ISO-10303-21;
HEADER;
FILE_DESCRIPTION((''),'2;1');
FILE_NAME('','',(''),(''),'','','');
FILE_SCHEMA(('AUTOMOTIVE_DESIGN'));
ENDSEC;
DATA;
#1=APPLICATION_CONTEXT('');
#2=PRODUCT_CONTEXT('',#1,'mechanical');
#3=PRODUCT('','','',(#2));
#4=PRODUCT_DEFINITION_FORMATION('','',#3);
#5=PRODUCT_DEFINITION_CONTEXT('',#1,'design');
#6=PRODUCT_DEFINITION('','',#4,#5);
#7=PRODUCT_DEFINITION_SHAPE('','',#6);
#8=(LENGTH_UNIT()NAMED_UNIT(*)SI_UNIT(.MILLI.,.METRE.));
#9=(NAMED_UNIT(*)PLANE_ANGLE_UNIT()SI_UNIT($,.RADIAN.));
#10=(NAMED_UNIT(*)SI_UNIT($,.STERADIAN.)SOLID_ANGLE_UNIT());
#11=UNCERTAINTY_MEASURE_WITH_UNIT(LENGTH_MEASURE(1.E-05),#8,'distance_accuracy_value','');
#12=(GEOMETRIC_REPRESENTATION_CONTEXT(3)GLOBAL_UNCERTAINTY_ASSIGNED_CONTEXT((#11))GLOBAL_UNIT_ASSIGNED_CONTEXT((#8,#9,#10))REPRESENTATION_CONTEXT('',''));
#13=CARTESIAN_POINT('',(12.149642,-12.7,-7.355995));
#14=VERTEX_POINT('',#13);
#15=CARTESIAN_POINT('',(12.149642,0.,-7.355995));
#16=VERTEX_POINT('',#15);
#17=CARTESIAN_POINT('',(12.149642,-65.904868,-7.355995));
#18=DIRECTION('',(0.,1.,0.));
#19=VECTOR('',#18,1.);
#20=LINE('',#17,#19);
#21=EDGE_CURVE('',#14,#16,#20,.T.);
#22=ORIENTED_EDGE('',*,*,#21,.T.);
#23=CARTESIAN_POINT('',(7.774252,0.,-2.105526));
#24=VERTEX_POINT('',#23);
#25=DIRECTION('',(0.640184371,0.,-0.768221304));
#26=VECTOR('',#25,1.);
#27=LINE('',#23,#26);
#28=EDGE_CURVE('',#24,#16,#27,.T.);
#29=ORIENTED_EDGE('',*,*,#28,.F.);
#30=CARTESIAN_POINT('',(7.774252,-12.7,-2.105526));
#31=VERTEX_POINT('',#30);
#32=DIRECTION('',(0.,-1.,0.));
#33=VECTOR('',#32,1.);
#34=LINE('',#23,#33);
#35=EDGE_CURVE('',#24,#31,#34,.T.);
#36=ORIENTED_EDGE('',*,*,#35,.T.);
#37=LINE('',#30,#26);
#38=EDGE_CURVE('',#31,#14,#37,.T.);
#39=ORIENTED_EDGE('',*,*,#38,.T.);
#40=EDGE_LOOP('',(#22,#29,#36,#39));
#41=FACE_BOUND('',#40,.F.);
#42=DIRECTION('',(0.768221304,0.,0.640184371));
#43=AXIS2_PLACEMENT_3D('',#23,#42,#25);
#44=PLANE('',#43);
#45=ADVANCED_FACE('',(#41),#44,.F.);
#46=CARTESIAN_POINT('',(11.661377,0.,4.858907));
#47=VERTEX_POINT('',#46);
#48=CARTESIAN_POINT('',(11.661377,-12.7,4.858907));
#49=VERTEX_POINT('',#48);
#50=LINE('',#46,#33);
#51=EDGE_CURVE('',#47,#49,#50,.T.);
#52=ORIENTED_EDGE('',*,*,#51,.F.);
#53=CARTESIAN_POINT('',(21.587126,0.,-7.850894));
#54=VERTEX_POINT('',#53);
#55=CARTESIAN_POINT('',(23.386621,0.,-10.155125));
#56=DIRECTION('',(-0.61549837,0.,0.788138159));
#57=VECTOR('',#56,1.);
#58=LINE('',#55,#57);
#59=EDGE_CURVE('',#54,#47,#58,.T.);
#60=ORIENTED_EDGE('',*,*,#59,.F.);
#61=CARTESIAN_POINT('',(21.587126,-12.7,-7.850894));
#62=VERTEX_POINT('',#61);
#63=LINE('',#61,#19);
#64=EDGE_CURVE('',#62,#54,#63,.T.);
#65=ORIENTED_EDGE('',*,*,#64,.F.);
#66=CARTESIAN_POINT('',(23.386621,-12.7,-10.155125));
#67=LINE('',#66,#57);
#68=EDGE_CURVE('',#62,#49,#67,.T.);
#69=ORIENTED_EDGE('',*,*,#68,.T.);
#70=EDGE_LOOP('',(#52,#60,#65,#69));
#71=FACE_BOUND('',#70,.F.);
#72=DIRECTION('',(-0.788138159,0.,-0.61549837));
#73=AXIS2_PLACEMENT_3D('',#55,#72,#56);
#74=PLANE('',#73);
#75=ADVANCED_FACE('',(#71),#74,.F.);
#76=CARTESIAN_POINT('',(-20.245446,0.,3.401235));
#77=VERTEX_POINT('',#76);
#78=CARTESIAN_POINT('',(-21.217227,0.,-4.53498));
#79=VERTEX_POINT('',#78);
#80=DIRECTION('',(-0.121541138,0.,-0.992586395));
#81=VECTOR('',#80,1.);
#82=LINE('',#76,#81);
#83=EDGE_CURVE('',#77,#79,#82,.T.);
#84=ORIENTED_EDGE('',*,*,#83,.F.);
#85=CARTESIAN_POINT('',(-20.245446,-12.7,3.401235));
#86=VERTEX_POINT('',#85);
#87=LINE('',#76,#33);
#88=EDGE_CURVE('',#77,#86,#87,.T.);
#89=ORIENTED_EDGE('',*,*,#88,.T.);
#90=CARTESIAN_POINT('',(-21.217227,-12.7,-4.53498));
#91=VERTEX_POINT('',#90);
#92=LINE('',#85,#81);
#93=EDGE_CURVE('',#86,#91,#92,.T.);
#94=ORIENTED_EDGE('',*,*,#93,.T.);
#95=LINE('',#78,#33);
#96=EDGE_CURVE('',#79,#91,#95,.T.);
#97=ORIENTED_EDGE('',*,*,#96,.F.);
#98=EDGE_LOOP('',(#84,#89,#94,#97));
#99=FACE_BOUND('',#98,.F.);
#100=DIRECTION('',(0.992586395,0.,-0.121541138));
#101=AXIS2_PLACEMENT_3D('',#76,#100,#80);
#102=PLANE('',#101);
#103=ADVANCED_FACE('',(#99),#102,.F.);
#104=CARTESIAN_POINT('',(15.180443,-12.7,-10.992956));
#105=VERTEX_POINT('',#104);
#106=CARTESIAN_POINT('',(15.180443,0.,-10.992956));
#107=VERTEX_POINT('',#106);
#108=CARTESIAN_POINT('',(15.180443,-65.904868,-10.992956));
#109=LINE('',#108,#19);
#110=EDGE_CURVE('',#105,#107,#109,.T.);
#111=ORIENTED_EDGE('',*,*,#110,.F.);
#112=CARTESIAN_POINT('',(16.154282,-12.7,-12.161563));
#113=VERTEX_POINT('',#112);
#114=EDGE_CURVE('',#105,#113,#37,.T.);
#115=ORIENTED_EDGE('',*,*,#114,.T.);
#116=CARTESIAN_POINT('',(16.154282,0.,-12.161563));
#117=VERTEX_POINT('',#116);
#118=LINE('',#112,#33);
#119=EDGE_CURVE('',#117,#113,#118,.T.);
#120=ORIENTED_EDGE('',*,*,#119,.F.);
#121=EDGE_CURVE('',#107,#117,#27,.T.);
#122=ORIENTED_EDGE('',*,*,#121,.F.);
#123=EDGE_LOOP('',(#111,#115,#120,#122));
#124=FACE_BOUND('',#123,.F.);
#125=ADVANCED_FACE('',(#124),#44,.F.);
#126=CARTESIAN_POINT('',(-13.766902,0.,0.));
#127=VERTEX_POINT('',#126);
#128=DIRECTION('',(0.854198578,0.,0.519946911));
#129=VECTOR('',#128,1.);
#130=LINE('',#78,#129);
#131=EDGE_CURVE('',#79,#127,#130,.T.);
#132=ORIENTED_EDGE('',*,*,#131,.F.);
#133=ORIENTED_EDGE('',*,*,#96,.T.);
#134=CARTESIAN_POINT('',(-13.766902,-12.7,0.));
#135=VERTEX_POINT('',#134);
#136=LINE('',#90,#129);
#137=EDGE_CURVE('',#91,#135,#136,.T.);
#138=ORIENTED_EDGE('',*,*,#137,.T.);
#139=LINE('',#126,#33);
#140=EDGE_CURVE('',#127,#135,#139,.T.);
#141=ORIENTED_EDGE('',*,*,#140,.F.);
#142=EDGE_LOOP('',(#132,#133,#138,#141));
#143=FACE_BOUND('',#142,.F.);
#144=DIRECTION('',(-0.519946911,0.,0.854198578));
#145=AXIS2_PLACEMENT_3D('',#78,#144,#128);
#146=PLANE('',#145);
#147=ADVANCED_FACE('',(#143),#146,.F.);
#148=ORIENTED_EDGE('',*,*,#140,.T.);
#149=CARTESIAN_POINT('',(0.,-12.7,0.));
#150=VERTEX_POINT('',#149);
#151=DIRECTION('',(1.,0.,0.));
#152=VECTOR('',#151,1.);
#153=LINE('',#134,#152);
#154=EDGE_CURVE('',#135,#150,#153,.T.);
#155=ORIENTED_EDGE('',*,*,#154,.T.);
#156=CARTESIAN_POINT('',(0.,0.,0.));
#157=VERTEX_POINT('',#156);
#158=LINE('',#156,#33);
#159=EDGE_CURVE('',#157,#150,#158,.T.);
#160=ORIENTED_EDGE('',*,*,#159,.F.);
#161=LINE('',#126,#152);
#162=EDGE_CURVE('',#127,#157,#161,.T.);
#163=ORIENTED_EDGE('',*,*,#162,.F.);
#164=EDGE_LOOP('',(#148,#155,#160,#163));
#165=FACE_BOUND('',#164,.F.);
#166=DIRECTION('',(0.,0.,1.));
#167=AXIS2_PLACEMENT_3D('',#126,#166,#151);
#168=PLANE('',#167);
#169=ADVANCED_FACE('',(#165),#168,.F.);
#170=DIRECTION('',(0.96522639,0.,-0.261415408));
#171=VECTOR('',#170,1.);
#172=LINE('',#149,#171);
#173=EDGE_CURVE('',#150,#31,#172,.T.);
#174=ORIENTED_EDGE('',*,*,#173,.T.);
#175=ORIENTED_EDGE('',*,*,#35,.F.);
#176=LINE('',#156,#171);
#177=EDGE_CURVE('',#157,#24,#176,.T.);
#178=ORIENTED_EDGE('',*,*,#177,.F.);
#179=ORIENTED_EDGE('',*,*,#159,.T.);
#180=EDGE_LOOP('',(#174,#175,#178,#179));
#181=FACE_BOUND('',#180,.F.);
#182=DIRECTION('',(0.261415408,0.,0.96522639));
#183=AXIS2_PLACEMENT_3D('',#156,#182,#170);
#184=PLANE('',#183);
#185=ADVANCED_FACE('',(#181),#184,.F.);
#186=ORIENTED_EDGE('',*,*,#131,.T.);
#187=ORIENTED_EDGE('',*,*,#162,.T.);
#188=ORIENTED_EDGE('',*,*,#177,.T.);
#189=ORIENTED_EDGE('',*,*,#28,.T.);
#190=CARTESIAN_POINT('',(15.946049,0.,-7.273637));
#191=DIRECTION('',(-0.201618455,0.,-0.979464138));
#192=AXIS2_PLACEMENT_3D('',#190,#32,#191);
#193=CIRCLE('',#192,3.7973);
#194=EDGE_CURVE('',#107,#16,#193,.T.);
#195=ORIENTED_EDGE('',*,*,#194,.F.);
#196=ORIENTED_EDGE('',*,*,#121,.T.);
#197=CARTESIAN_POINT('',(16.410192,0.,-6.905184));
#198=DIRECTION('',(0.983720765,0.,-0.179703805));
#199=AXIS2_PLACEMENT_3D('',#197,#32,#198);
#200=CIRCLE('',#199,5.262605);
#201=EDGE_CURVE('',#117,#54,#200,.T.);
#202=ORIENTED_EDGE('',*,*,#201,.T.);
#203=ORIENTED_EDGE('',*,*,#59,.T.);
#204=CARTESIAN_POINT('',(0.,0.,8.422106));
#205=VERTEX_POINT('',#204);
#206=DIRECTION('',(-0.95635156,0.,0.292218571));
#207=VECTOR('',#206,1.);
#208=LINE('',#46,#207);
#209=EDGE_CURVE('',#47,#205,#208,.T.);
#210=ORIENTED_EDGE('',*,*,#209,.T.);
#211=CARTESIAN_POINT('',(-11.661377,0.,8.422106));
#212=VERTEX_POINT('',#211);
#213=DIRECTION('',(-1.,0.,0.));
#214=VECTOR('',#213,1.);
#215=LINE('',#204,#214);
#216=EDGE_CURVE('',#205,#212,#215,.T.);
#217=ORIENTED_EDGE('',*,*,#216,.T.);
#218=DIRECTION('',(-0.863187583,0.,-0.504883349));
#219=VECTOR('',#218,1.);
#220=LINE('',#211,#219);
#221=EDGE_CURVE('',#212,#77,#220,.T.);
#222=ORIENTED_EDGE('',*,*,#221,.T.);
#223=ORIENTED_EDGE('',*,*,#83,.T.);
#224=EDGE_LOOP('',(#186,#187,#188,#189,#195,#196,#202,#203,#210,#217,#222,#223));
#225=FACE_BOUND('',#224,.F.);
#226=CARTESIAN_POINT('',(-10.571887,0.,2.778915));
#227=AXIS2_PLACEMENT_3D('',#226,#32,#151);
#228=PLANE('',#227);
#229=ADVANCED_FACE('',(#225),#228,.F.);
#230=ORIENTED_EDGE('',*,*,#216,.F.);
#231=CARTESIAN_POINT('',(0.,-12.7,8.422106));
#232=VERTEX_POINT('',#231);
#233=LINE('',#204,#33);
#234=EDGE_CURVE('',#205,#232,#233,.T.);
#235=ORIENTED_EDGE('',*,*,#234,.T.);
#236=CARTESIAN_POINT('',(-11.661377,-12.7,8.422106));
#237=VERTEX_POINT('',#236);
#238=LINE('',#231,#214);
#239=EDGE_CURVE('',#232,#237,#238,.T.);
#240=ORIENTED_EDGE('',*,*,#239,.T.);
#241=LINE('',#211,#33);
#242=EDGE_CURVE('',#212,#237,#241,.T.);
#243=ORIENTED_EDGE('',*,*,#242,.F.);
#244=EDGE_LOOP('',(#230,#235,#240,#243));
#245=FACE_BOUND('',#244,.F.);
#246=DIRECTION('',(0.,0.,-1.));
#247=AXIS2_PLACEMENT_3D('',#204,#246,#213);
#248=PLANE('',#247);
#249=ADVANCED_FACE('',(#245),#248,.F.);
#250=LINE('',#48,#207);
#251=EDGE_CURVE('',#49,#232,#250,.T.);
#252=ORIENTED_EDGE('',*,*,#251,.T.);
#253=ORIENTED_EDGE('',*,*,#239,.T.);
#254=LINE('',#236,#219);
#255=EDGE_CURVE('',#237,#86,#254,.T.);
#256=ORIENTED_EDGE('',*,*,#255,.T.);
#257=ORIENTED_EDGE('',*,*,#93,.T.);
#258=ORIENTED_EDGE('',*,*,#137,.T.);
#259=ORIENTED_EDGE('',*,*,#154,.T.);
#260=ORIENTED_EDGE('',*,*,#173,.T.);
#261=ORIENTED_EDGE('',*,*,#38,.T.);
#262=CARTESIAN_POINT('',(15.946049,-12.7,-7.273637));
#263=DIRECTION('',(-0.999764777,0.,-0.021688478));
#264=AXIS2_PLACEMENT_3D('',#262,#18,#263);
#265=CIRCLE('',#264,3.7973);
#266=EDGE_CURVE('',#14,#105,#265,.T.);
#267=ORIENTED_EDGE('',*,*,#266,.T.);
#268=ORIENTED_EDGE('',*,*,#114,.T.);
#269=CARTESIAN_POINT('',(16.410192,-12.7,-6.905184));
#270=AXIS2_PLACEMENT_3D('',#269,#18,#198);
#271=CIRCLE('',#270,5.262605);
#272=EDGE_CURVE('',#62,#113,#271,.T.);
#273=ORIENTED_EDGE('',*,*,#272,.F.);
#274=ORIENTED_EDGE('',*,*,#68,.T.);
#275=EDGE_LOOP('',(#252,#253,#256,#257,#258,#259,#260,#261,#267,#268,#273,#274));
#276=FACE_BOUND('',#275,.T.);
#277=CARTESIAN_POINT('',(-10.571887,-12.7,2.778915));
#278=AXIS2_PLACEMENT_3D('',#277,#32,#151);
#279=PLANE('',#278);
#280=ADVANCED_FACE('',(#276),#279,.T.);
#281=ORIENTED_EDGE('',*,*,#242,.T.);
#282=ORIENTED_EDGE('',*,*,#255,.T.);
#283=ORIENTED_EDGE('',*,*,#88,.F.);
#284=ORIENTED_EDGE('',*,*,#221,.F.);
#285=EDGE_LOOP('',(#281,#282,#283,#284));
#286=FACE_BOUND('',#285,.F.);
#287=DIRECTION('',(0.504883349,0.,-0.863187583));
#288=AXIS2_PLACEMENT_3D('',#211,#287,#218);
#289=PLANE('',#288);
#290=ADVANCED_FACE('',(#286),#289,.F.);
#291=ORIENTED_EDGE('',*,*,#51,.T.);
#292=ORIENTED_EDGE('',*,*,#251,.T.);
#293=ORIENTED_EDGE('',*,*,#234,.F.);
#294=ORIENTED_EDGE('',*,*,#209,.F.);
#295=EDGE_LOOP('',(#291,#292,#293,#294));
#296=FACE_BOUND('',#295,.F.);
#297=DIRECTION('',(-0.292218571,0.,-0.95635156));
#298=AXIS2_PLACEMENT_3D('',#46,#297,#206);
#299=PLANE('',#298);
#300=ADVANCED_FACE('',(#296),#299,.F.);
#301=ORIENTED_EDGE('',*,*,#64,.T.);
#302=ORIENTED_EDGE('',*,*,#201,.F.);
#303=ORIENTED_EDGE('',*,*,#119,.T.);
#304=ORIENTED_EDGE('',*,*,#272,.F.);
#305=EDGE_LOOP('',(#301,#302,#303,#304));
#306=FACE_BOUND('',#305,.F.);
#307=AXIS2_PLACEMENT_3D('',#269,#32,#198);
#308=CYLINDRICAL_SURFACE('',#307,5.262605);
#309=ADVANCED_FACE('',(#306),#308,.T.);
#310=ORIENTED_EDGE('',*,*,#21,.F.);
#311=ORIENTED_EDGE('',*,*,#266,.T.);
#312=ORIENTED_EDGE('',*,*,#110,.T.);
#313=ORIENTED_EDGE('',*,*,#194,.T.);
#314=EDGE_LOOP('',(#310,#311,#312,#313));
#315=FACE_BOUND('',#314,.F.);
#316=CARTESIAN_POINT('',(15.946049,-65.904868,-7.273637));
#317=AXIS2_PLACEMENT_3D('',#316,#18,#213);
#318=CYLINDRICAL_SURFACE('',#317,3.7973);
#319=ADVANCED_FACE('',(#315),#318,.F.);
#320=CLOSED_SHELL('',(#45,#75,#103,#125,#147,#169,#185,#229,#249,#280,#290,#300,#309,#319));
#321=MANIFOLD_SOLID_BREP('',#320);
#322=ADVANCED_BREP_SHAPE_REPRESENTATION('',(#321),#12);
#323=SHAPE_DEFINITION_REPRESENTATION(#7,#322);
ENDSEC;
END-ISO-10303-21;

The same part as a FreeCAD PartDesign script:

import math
import FreeCAD as App
import Part
import Sketcher
Q = App.Units.Quantity

doc = App.newDocument("Part")
params = doc.addObject("Spreadsheet::Sheet", "Params")
for row, (alias, value) in enumerate([
    ("sketch1_length", "0.75 in"),
    ("pad1_length", "0.5 in"),
    ("sketch2_diameter", "0.299 in"),
    ("hole_diameter", "0.299 in"),
    ("pocket1_length", "1 in"),
], start=1):
    params.set(f"A{row}", alias)
    params.set(f"B{row}", "=" + value)
    params.setAlias(f"B{row}", alias)

body = doc.addObject("PartDesign::Body", "Body")

# Sketch on XZ plane
sketch1 = body.newObject("Sketcher::SketchObject", "Sketch")
sketch1.AttachmentSupport = (doc.getObject("XZ_Plane"), [""])
sketch1.MapMode = "FlatFace"
sketch1.addGeometry(Part.LineSegment(App.Vector(-14, 0, 0), App.Vector(0, 0, 0)), False)
sketch1.addGeometry(Part.LineSegment(App.Vector(0, 0, 0), App.Vector(8, -2, 0)), False)
sketch1.addGeometry(Part.LineSegment(App.Vector(8, -2, 0), App.Vector(21, -18, 0)), False)
sketch1.addGeometry(Part.LineSegment(App.Vector(21, -18, 0), App.Vector(23, -10, 0)), False)
sketch1.addGeometry(Part.LineSegment(App.Vector(23, -10, 0), App.Vector(12, 5, 0)), False)
sketch1.addGeometry(Part.LineSegment(App.Vector(12, 5, 0), App.Vector(0, 8, 0)), False)
sketch1.addGeometry(Part.LineSegment(App.Vector(0, 8, 0), App.Vector(-12, 8, 0)), False)
sketch1.addGeometry(Part.LineSegment(App.Vector(-12, 8, 0), App.Vector(-20, 3, 0)), False)
sketch1.addGeometry(Part.LineSegment(App.Vector(-20, 3, 0), App.Vector(-21, -5, 0)), False)
sketch1.addGeometry(Part.LineSegment(App.Vector(-21, -5, 0), App.Vector(-14, 0, 0)), False)
sketch1.addConstraint(Sketcher.Constraint("Coincident", 0, 2, 1, 1))
sketch1.addConstraint(Sketcher.Constraint("Coincident", 1, 2, 2, 1))
sketch1.addConstraint(Sketcher.Constraint("Coincident", 2, 2, 3, 1))
sketch1.addConstraint(Sketcher.Constraint("Coincident", 3, 2, 4, 1))
sketch1.addConstraint(Sketcher.Constraint("Coincident", 4, 2, 5, 1))
sketch1.addConstraint(Sketcher.Constraint("Coincident", 5, 2, 6, 1))
sketch1.addConstraint(Sketcher.Constraint("Coincident", 6, 2, 7, 1))
sketch1.addConstraint(Sketcher.Constraint("Coincident", 7, 2, 8, 1))
sketch1.addConstraint(Sketcher.Constraint("Coincident", 8, 2, 9, 1))
sketch1.addConstraint(Sketcher.Constraint("Coincident", 9, 2, 0, 1))
sketch1.addConstraint(Sketcher.Constraint("Horizontal", 0))
sketch1.addConstraint(Sketcher.Constraint("Horizontal", 6))
sketch1.addConstraint(Sketcher.Constraint("Coincident", 0, 2, -1, 1))
sketch1.addConstraint(Sketcher.Constraint("PointOnObject", 5, 2, -2))
sketch1.addConstraint(Sketcher.Constraint("Distance", 4, Q("0.75 in")))
sketch1.addConstraint(Sketcher.Constraint("DistanceY", 3, 2, 1, 2, Q("8.049599 mm")))
sketch1.addConstraint(Sketcher.Constraint("DistanceY", 4, 2, 5, 2, Q("3.563199 mm")))
sketch1.addConstraint(Sketcher.Constraint("DistanceX", 7, 2, 1, 2, Q("28.019698 mm")))
sketch1.addConstraint(Sketcher.Constraint("Distance", 1, Q("8.05433 mm")))
sketch1.addConstraint(Sketcher.Constraint("Distance", 3, Q("7.955129 mm")))
sketch1.addConstraint(Sketcher.Constraint("Distance", 5, Q("12.193609 mm")))
sketch1.addConstraint(Sketcher.Constraint("Distance", 8, Q("7.99549 mm")))
sketch1.addConstraint(Sketcher.Constraint("DistanceX", 0, 1, 0, 2, Q("13.766902 mm")))
sketch1.addConstraint(Sketcher.Constraint("DistanceX", 6, 2, 6, 1, Q("11.661377 mm")))
sketch1.addConstraint(Sketcher.Constraint("DistanceX", -1, 1, 1, 2, Q("7.774252 mm")))
sketch1.addConstraint(Sketcher.Constraint("DistanceY", 2, 2, -1, 1, Q("17.654028 mm")))
sketch1.addConstraint(Sketcher.Constraint("DistanceX", -1, 1, 3, 2, Q("23.386621 mm")))
sketch1.addConstraint(Sketcher.Constraint("DistanceY", 8, 2, -1, 1, Q("4.53498 mm")))
sketch1.addConstraint(Sketcher.Constraint("DistanceY", 7, 2, 6, 2, Q("5.020871 mm")))
sketch1.setExpression("Constraints[14]", "Params.sketch1_length")
pad1 = body.newObject("PartDesign::Pad", "Pad")
pad1.Profile = sketch1
pad1.setExpression("Length", "Params.pad1_length")

# Sketch on XZ plane
sketch2 = body.newObject("Sketcher::SketchObject", "Sketch001")
sketch2.AttachmentSupport = (doc.getObject("XZ_Plane"), [""])
sketch2.MapMode = "FlatFace"
sketch2.AttachmentOffset = App.Placement(App.Vector(0, 0, 0.5 * 25.4), App.Rotation())
sketch2.addGeometry(Part.Circle(App.Vector(15.9, -7.3, 0), App.Vector(0, 0, 1), 3.8), False)
sketch2.addConstraint(Sketcher.Constraint("Diameter", 0, Q("0.299 in")))
sketch2.addConstraint(Sketcher.Constraint("DistanceX", -1, 1, 0, 3, Q("15.946049 mm")))
sketch2.addConstraint(Sketcher.Constraint("DistanceY", 0, 3, -1, 1, Q("7.273637 mm")))
sketch2.setExpression("Constraints[0]", "Params.sketch2_diameter")
doc.recompute()
hole = body.newObject("PartDesign::Hole", "Hole")
hole.Profile = sketch2
hole.ThreadType = "None"
hole.setExpression("Diameter", "Params.hole_diameter")
hole.DepthType = "ThroughAll"

# Sketch on XZ plane
sketch3 = body.newObject("Sketcher::SketchObject", "Sketch002")
sketch3.AttachmentSupport = (doc.getObject("XZ_Plane"), [""])
sketch3.MapMode = "FlatFace"
sketch3.AttachmentOffset = App.Placement(App.Vector(0, 0, 0.5 * 25.4), App.Rotation())
sketch3.addGeometry(Part.ArcOfCircle(Part.Circle(App.Vector(16.4, -6.9, 0), App.Vector(0, 0, 1), 5.3), math.radians(-93), math.radians(-10)), False)
sketch3.addGeometry(Part.LineSegment(App.Vector(16.2, -12.2, 0), App.Vector(20.7, -17.7, 0)), False)
sketch3.addGeometry(Part.LineSegment(App.Vector(20.7, -17.7, 0), App.Vector(23.4, -10.2, 0)), False)
sketch3.addGeometry(Part.LineSegment(App.Vector(23.4, -10.2, 0), App.Vector(21.6, -7.9, 0)), False)
sketch3.addConstraint(Sketcher.Constraint("Coincident", 0, 1, 1, 1))
sketch3.addConstraint(Sketcher.Constraint("Coincident", 1, 2, 2, 1))
sketch3.addConstraint(Sketcher.Constraint("Coincident", 2, 2, 3, 1))
sketch3.addConstraint(Sketcher.Constraint("Coincident", 3, 2, 0, 2))
sketch3.addConstraint(Sketcher.Constraint("Radius", 0, Q("5.262605 mm")))
sketch3.addConstraint(Sketcher.Constraint("Distance", 2, Q("7.955129 mm")))
sketch3.addConstraint(Sketcher.Constraint("Distance", 3, Q("2.923639 mm")))
sketch3.addConstraint(Sketcher.Constraint("DistanceX", -1, 1, 0, 1, Q("16.154281 mm")))
sketch3.addConstraint(Sketcher.Constraint("DistanceY", 1, 2, -1, 1, Q("17.654028 mm")))
sketch3.addConstraint(Sketcher.Constraint("DistanceX", -1, 1, 2, 2, Q("23.386621 mm")))
sketch3.addConstraint(Sketcher.Constraint("DistanceX", 0, 1, 0, 3, Q("0.255911 mm")))
sketch3.addConstraint(Sketcher.Constraint("DistanceY", 0, 1, 2, 2, Q("2.006438 mm")))
sketch3.addConstraint(Sketcher.Constraint("DistanceX", 1, 2, 3, 2, Q("0.85579 mm")))
pocket1 = body.newObject("PartDesign::Pocket", "Pocket")
pocket1.Profile = sketch3
pocket1.setExpression("Length", "Params.pocket1_length")

doc.recompute()
